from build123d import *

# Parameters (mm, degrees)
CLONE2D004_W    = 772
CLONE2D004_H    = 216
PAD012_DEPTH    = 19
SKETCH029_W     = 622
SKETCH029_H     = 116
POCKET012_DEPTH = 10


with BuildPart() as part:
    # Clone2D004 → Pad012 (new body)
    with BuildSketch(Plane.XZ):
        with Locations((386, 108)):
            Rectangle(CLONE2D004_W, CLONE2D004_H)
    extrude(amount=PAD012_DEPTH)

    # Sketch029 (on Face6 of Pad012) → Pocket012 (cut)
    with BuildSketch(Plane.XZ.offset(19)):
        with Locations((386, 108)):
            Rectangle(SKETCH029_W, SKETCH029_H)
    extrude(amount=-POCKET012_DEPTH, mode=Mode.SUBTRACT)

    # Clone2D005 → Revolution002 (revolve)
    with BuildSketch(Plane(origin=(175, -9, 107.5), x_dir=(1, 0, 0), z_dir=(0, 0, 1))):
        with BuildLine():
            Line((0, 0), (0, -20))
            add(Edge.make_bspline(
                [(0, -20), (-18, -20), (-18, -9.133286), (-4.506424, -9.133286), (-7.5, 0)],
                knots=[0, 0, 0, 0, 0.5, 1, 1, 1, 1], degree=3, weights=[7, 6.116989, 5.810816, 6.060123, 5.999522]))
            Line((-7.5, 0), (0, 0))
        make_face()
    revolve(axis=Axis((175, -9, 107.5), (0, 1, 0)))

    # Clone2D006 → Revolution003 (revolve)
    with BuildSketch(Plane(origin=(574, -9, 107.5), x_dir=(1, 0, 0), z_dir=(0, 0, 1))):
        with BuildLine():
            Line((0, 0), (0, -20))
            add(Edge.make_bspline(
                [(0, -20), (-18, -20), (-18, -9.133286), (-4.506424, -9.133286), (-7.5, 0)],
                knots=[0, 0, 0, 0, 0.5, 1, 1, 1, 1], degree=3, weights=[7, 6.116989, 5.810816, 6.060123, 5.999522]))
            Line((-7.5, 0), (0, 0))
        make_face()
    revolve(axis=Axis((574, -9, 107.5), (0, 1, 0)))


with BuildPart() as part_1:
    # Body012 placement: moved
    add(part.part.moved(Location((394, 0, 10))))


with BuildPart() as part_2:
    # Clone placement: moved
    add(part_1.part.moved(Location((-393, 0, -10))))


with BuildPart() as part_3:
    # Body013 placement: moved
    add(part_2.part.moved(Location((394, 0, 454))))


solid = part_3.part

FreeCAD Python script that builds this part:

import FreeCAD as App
import Part
import Sketcher
Q = App.Units.Quantity


def add_polygon(sketch, points):
    """Adds a closed chain of lines whose ends are joined by coincident constraints."""
    first, n = sketch.GeometryCount, len(points)
    for a, b in zip(points, points[1:] + points[:1]):
        sketch.addGeometry(Part.LineSegment(App.Vector(*a, 0), App.Vector(*b, 0)), False)
    for i in range(n):
        sketch.addConstraint(Sketcher.Constraint("Coincident", first + i, 2, first + (i + 1) % n, 1))

doc = App.newDocument("Part")
body = doc.addObject("PartDesign::Body", "Body")

# Sketch on XZ plane
sketch1 = doc.addObject("Sketcher::SketchObject", "Sketch")
body.addObject(sketch1)
sketch1.AttachmentSupport = (doc.XZ_Plane, [""])
sketch1.MapMode = "FlatFace"
add_polygon(sketch1, [(0, 216), (0, 0), (772, 0), (772, 216)])  # lines 0-3
sketch1.addConstraint(Sketcher.Constraint("Vertical", 0))
sketch1.addConstraint(Sketcher.Constraint("Horizontal", 1))
sketch1.addConstraint(Sketcher.Constraint("Vertical", 2))
sketch1.addConstraint(Sketcher.Constraint("Horizontal", 3))
sketch1.addConstraint(Sketcher.Constraint("Coincident", 0, 2, -1, 1))
sketch1.addConstraint(Sketcher.Constraint("DistanceX", 1, 1, 1, 2, Q("772 mm")))
sketch1.addConstraint(Sketcher.Constraint("DistanceY", 0, 2, 0, 1, Q("216 mm")))
pad1 = doc.addObject("PartDesign::Pad", "Pad")
body.addObject(pad1)
pad1.Profile = sketch1
pad1.Length = 19

# Sketch on XZ plane
sketch2 = doc.addObject("Sketcher::SketchObject", "Sketch001")
body.addObject(sketch2)
sketch2.AttachmentSupport = (doc.XZ_Plane, [""])
sketch2.MapMode = "FlatFace"
sketch2.AttachmentOffset = App.Placement(App.Vector(0, 0, 19), App.Rotation())
add_polygon(sketch2, [(75, 166), (75, 50), (697, 50), (697, 166)])  # lines 0-3
sketch2.addConstraint(Sketcher.Constraint("Vertical", 0))
sketch2.addConstraint(Sketcher.Constraint("Horizontal", 1))
sketch2.addConstraint(Sketcher.Constraint("Vertical", 2))
sketch2.addConstraint(Sketcher.Constraint("Horizontal", 3))
sketch2.addConstraint(Sketcher.Constraint("DistanceX", 1, 1, 1, 2, Q("622 mm")))
sketch2.addConstraint(Sketcher.Constraint("DistanceY", 0, 2, 0, 1, Q("116 mm")))
sketch2.addConstraint(Sketcher.Constraint("DistanceX", -1, 1, 0, 2, Q("75 mm")))
sketch2.addConstraint(Sketcher.Constraint("DistanceY", -1, 1, 0, 2, Q("50 mm")))
pocket1 = doc.addObject("PartDesign::Pocket", "Pocket")
body.addObject(pocket1)
pocket1.Profile = sketch2
pocket1.Length = 10

# Sketch on XY plane
sketch3 = doc.addObject("Sketcher::SketchObject", "Sketch002")
body.addObject(sketch3)
sketch3.AttachmentSupport = (doc.XY_Plane, [""])
sketch3.MapMode = "FlatFace"
sketch3.AttachmentOffset = App.Placement(App.Vector(0, 0, 107.5), App.Rotation())
sketch3.addGeometry(Part.LineSegment(App.Vector(175, -29, 0), App.Vector(175, -9, 0)), False)
sketch3.addGeometry(Part.LineSegment(App.Vector(175, -9, 0), App.Vector(167.5, -9, 0)), False)
sketch3.addGeometry(Part.BSplineCurve([App.Vector(175, -29, 0), App.Vector(157, -29, 0), App.Vector(157, -18.133286, 0), App.Vector(170.493576, -18.133286, 0), App.Vector(167.5, -9, 0)], [4, 1, 4], [0, 0.5, 1], False, 3, [7, 6.116989, 5.810816, 6.060123, 5.999522], False), False)
sketch3.addGeometry(Part.LineSegment(App.Vector(175, -29, 0), App.Vector(175, -9, 0)), True)  # axis
sketch3.addConstraint(Sketcher.Constraint("Block", 2))
sketch3.addConstraint(Sketcher.Constraint("Coincident", 0, 2, 1, 1))
sketch3.addConstraint(Sketcher.Constraint("Coincident", 1, 2, 2, 2))
sketch3.addConstraint(Sketcher.Constraint("Coincident", 2, 1, 0, 1))
sketch3.addConstraint(Sketcher.Constraint("Vertical", 0))
sketch3.addConstraint(Sketcher.Constraint("Horizontal", 1))
sketch3.addConstraint(Sketcher.Constraint("Vertical", 3))
sketch3.addConstraint(Sketcher.Constraint("Coincident", 3, 2, 0, 2))
sketch3.addConstraint(Sketcher.Constraint("Equal", 0, 3))
revolution = doc.addObject("PartDesign::Revolution", "Revolution")
body.addObject(revolution)
revolution.Profile = sketch3
revolution.ReferenceAxis = (sketch3, ["Axis0"])
revolution.Angle = 360

# Sketch on XY plane
sketch4 = doc.addObject("Sketcher::SketchObject", "Sketch003")
body.addObject(sketch4)
sketch4.AttachmentSupport = (doc.XY_Plane, [""])
sketch4.MapMode = "FlatFace"
sketch4.AttachmentOffset = App.Placement(App.Vector(0, 0, 107.5), App.Rotation())
sketch4.addGeometry(Part.LineSegment(App.Vector(574, -29, 0), App.Vector(574, -9, 0)), False)
sketch4.addGeometry(Part.LineSegment(App.Vector(574, -9, 0), App.Vector(566.5, -9, 0)), False)
sketch4.addGeometry(Part.BSplineCurve([App.Vector(574, -29, 0), App.Vector(556, -29, 0), App.Vector(556, -18.133286, 0), App.Vector(569.493576, -18.133286, 0), App.Vector(566.5, -9, 0)], [4, 1, 4], [0, 0.5, 1], False, 3, [7, 6.116989, 5.810816, 6.060123, 5.999522], False), False)
sketch4.addGeometry(Part.LineSegment(App.Vector(574, -29, 0), App.Vector(574, -9, 0)), True)  # axis
sketch4.addConstraint(Sketcher.Constraint("Block", 2))
sketch4.addConstraint(Sketcher.Constraint("Coincident", 0, 2, 1, 1))
sketch4.addConstraint(Sketcher.Constraint("Coincident", 1, 2, 2, 2))
sketch4.addConstraint(Sketcher.Constraint("Coincident", 2, 1, 0, 1))
sketch4.addConstraint(Sketcher.Constraint("Vertical", 0))
sketch4.addConstraint(Sketcher.Constraint("Horizontal", 1))
sketch4.addConstraint(Sketcher.Constraint("Vertical", 3))
sketch4.addConstraint(Sketcher.Constraint("Coincident", 3, 2, 0, 2))
sketch4.addConstraint(Sketcher.Constraint("Equal", 0, 3))
revolution2 = doc.addObject("PartDesign::Revolution", "Revolution001")
body.addObject(revolution2)
revolution2.Profile = sketch4
revolution2.ReferenceAxis = (sketch4, ["Axis0"])
revolution2.Angle = 360
body2 = doc.addObject("PartDesign::Body", "Body001")
doc.recompute()

body.Placement = App.Placement(App.Vector(394, 0, 10), App.Rotation(App.Vector(0, 0, 1), 0))
boolean = doc.addObject("PartDesign::Boolean", "Boolean")
body2.addObject(boolean)
boolean.Type = "Fuse"
boolean.addObjects([body])
body3 = doc.addObject("PartDesign::Body", "Body002")
doc.recompute()

body2.Placement = App.Placement(App.Vector(-393, 0, -10), App.Rotation(App.Vector(0, 0, 1), 0))
boolean2 = doc.addObject("PartDesign::Boolean", "Boolean001")
body3.addObject(boolean2)
boolean2.Type = "Fuse"
boolean2.addObjects([body2])
body4 = doc.addObject("PartDesign::Body", "Body003")
doc.recompute()

body3.Placement = App.Placement(App.Vector(394, 0, 454), App.Rotation(App.Vector(0, 0, 1), 0))
boolean3 = doc.addObject("PartDesign::Boolean", "Boolean002")
body4.addObject(boolean3)
boolean3.Type = "Fuse"
boolean3.addObjects([body3])

doc.recompute()
